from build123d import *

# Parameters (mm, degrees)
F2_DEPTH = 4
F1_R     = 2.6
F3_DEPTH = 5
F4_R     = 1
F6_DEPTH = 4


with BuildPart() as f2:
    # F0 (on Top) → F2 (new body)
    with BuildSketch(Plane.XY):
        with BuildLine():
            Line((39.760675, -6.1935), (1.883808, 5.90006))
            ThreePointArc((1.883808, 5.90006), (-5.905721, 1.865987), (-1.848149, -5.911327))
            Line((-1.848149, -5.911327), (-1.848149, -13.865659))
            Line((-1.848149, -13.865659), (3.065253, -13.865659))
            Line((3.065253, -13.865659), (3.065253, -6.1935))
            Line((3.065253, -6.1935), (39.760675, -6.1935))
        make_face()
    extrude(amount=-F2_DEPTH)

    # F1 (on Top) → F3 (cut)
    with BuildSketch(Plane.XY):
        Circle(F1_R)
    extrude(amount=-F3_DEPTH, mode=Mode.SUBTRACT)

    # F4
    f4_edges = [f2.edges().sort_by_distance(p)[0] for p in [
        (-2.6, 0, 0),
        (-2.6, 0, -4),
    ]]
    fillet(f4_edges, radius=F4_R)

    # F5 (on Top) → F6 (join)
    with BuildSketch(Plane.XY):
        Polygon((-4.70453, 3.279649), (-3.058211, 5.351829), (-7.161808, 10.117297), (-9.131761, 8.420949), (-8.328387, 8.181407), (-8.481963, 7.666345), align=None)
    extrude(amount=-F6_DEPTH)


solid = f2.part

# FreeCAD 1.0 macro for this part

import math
import FreeCAD as App
import Part
import Sketcher
from FreeCAD import Vector


def edges_at(feature, points):
    """Names of the edges that pass closest to the given points."""
    edges = feature.Shape.Edges
    near = lambda p: min(range(len(edges)), key=lambda i: edges[i].distToShape(Part.Vertex(*p))[0])
    return sorted({f"Edge{near(p) + 1}" for p in points})

doc = App.newDocument("Part")
params = doc.addObject("Spreadsheet::Sheet", "Params")
for row, (alias, value) in enumerate([
    ("pad1_length", "4 mm"),
    ("sketch2_diameter", "5.2 mm"),
    ("pocket1_length", "5 mm"),
    ("fillet_radius", "1 mm"),
    ("pad2_length", "4 mm"),
], start=1):
    params.set(f"A{row}", alias)
    params.set(f"B{row}", "=" + value)
    params.setAlias(f"B{row}", alias)

body = doc.addObject("PartDesign::Body", "Body")

# Sketch on XY plane
sketch1 = body.newObject("Sketcher::SketchObject", "Sketch")
sketch1.AttachmentSupport = (doc.getObject("XY_Plane"), [""])
sketch1.MapMode = "FlatFace"
sketch1.addGeometry([
    Part.LineSegment(Vector(39.760675, -6.1935, 0), Vector(1.883808, 5.90006, 0)),  # 0
    Part.ArcOfCircle(Part.Circle(Vector(-0.000001, 0, 0), Vector(0, 0, 1), 6.1935), math.radians(72.292427), math.radians(252.638393)),  # 1
    Part.LineSegment(Vector(-1.848149, -5.911327, 0), Vector(-1.848149, -13.865659, 0)),  # 2
    Part.LineSegment(Vector(-1.848149, -13.865659, 0), Vector(3.065253, -13.865659, 0)),  # 3
    Part.LineSegment(Vector(3.065253, -13.865659, 0), Vector(3.065253, -6.1935, 0)),  # 4
    Part.LineSegment(Vector(3.065253, -6.1935, 0), Vector(39.760675, -6.1935, 0)),  # 5
], False)
sketch1.addConstraint([
    Sketcher.Constraint("Tangent", 0, 2, 1, 1),
    Sketcher.Constraint("Coincident", 1, 2, 2, 1),
    Sketcher.Constraint("Coincident", 2, 2, 3, 1),
    Sketcher.Constraint("Coincident", 3, 2, 4, 1),
    Sketcher.Constraint("Coincident", 4, 2, 5, 1),
    Sketcher.Constraint("Coincident", 5, 2, 0, 1),
    Sketcher.Constraint("Vertical", 2),
    Sketcher.Constraint("Horizontal", 3),
    Sketcher.Constraint("Vertical", 4),
    Sketcher.Constraint("Horizontal", 5),
    Sketcher.Constraint("Coincident", 1, 3, -1, 1),
    Sketcher.Constraint("Radius", 1, 6.1935),
    Sketcher.Constraint("DistanceX", 3, 1, 3, 2, 4.913402),
    Sketcher.Constraint("DistanceY", 4, 1, 4, 2, 7.672159),
    Sketcher.Constraint("DistanceY", 4, 2, -1, 1, 6.1935),
    Sketcher.Constraint("DistanceX", 5, 1, 5, 2, 36.695422),
    Sketcher.Constraint("DistanceY", 2, 2, 2, 1, 7.954332),
])
pad1 = body.newObject("PartDesign::Pad", "Pad")
pad1.Profile = sketch1
pad1.setExpression("Length", "Params.pad1_length")
pad1.Reversed = True

# Sketch on XY plane
sketch2 = body.newObject("Sketcher::SketchObject", "Sketch001")
sketch2.AttachmentSupport = (doc.getObject("XY_Plane"), [""])
sketch2.MapMode = "FlatFace"
sketch2.addGeometry(Part.Circle(Vector(0, 0, 0), Vector(0, 0, 1), 2.6), False)
sketch2.addConstraint([
    Sketcher.Constraint("Coincident", 0, 3, -1, 1),
    Sketcher.Constraint("Diameter", 0, 5.2),
])
sketch2.setExpression("Constraints[1]", "Params.sketch2_diameter")
pocket1 = body.newObject("PartDesign::Pocket", "Pocket")
pocket1.Profile = sketch2
pocket1.setExpression("Length", "Params.pocket1_length")
doc.recompute()

fillet = body.newObject("PartDesign::Fillet", "Fillet")
fillet.Base = (pocket1, edges_at(pocket1, [(-2.6, 0, 0), (-2.6, 0, -4)]))
fillet.setExpression("Radius", "Params.fillet_radius")

# Sketch on XY plane
sketch3 = body.newObject("Sketcher::SketchObject", "Sketch002")
sketch3.AttachmentSupport = (doc.getObject("XY_Plane"), [""])
sketch3.MapMode = "FlatFace"
sketch3.addGeometry([
    Part.LineSegment(Vector(-4.70453, 3.279649, 0), Vector(-3.058211, 5.351829, 0)),  # 0
    Part.LineSegment(Vector(-3.058211, 5.351829, 0), Vector(-7.161808, 10.117297, 0)),  # 1
    Part.LineSegment(Vector(-7.161808, 10.117297, 0), Vector(-9.131761, 8.420949, 0)),  # 2
    Part.LineSegment(Vector(-9.131761, 8.420949, 0), Vector(-8.328387, 8.181407, 0)),  # 3
    Part.LineSegment(Vector(-8.328387, 8.181407, 0), Vector(-8.481963, 7.666345, 0)),  # 4
    Part.LineSegment(Vector(-8.481963, 7.666345, 0), Vector(-4.70453, 3.279649, 0)),  # 5
], False)
sketch3.addConstraint([
    Sketcher.Constraint("Coincident", 0, 2, 1, 1),
    Sketcher.Constraint("Coincident", 1, 2, 2, 1),
    Sketcher.Constraint("Coincident", 2, 2, 3, 1),
    Sketcher.Constraint("Coincident", 3, 2, 4, 1),
    Sketcher.Constraint("Coincident", 4, 2, 5, 1),
    Sketcher.Constraint("Coincident", 5, 2, 0, 1),
    Sketcher.Constraint("Perpendicular", 1, 2),
    Sketcher.Constraint("Perpendicular", 3, 4),
    Sketcher.Constraint("Perpendicular", 2, 5),
    Sketcher.Constraint("DistanceY", 5, 2, 2, 2, 5.1413),
    Sketcher.Constraint("Distance", 4, 0.53747),
    Sketcher.Constraint("DistanceX", 0, 2, -1, 1, 3.058211),
    Sketcher.Constraint("DistanceY", -1, 1, 0, 2, 5.351829),
    Sketcher.Constraint("DistanceX", 2, 2, -1, 1, 9.131761),
    Sketcher.Constraint("DistanceY", -1, 1, 2, 2, 8.420949),
    Sketcher.Constraint("DistanceX", 5, 2, -1, 1, 4.70453),
    Sketcher.Constraint("DistanceY", 0, 2, 1, 2, 4.765468),
    Sketcher.Constraint("DistanceX", 3, 2, 1, 2, 1.166579),
])
pad2 = body.newObject("PartDesign::Pad", "Pad001")
pad2.Profile = sketch3
pad2.setExpression("Length", "Params.pad2_length")
pad2.Reversed = True

doc.recompute()
